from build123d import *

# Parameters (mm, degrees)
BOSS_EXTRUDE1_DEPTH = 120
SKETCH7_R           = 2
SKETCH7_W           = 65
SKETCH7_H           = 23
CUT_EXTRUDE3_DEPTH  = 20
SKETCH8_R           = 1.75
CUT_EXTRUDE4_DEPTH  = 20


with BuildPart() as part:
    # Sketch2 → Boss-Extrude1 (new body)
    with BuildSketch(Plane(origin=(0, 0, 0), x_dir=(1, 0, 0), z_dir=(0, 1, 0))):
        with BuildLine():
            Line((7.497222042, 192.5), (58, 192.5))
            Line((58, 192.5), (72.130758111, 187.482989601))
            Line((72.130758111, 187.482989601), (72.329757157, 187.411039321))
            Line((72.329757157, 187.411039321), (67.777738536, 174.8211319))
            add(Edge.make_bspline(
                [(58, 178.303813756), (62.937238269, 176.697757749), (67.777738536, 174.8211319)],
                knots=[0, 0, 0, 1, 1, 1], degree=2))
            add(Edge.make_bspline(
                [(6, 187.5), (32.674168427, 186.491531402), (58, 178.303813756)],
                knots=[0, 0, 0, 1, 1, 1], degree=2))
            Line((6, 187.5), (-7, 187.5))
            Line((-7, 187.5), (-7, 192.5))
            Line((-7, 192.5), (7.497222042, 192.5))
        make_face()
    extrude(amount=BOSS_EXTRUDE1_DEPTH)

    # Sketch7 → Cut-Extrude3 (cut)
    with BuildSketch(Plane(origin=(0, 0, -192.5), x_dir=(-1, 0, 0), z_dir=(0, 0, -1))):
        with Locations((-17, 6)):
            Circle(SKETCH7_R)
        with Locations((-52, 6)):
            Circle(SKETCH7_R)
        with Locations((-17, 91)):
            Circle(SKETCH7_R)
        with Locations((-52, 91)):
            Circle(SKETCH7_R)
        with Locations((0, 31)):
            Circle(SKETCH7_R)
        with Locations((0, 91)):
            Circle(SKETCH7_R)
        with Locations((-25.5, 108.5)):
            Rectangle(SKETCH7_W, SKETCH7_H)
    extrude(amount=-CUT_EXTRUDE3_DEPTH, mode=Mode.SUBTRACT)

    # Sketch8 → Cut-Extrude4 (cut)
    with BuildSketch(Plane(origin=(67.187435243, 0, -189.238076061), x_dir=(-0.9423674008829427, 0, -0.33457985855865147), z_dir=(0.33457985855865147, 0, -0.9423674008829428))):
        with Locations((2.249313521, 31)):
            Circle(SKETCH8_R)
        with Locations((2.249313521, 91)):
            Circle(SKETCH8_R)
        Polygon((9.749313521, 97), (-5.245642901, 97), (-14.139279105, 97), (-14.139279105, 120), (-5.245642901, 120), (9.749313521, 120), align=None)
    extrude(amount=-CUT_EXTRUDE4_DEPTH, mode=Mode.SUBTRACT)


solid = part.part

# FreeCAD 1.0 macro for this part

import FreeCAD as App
import Part
import Sketcher

doc = App.newDocument("Part")
body = doc.addObject("PartDesign::Body", "Body")

# Sketch on XZ plane
sketch1 = body.newObject("Sketcher::SketchObject", "Sketch")
sketch1.AttachmentSupport = (doc.getObject("XZ_Plane"), [""])
sketch1.MapMode = "FlatFace"
sketch1.addGeometry(Part.LineSegment(App.Vector(72.130758, -187.48299, 0), App.Vector(58, -192.5, 0)), False)
sketch1.addGeometry(Part.LineSegment(App.Vector(58, -192.5, 0), App.Vector(-7, -192.5, 0)), False)
sketch1.addGeometry(Part.LineSegment(App.Vector(-7, -192.5, 0), App.Vector(-7, -187.5, 0)), False)
sketch1.addGeometry(Part.LineSegment(App.Vector(-7, -187.5, 0), App.Vector(6, -187.5, 0)), False)
sketch1.addGeometry(Part.BSplineCurve([App.Vector(6, -187.5, 0), App.Vector(32.674168, -186.491531, 0), App.Vector(58, -178.303814, 0)], [3, 3], [0, 1], False, 2, [1, 1, 1], False), False)
sketch1.addGeometry(Part.BSplineCurve([App.Vector(58, -178.303814, 0), App.Vector(62.937238, -176.697758, 0), App.Vector(67.777739, -174.821132, 0)], [3, 3], [0, 1], False, 2, [1, 1, 1], False), False)
sketch1.addGeometry(Part.LineSegment(App.Vector(67.777739, -174.821132, 0), App.Vector(72.329757, -187.411039, 0)), False)
sketch1.addGeometry(Part.LineSegment(App.Vector(72.329757, -187.411039, 0), App.Vector(72.130758, -187.48299, 0)), False)
sketch1.addConstraint(Sketcher.Constraint("Block", 4))
sketch1.addConstraint(Sketcher.Constraint("Block", 5))
sketch1.addConstraint(Sketcher.Constraint("Coincident", 0, 2, 1, 1))
sketch1.addConstraint(Sketcher.Constraint("Coincident", 1, 2, 2, 1))
sketch1.addConstraint(Sketcher.Constraint("Coincident", 2, 2, 3, 1))
sketch1.addConstraint(Sketcher.Constraint("Coincident", 3, 2, 4, 1))
sketch1.addConstraint(Sketcher.Constraint("Coincident", 5, 2, 6, 1))
sketch1.addConstraint(Sketcher.Constraint("Coincident", 6, 2, 7, 1))
sketch1.addConstraint(Sketcher.Constraint("Coincident", 7, 2, 0, 1))
sketch1.addConstraint(Sketcher.Constraint("Horizontal", 1))
sketch1.addConstraint(Sketcher.Constraint("Vertical", 2))
sketch1.addConstraint(Sketcher.Constraint("Horizontal", 3))
sketch1.addConstraint(Sketcher.Constraint("DistanceX", 1, 2, 1, 1, 65.0))
sketch1.addConstraint(Sketcher.Constraint("DistanceX", 3, 1, 3, 2, 13.0))
sketch1.addConstraint(Sketcher.Constraint("DistanceY", 2, 1, 2, 2, 5.0))
sketch1.addConstraint(Sketcher.Constraint("DistanceX", 7, 2, 6, 2, 0.198999))
sketch1.addConstraint(Sketcher.Constraint("DistanceY", 6, 2, -1, 1, 187.411039))
sketch1.addConstraint(Sketcher.Constraint("DistanceX", -1, 1, 7, 2, 72.130758))
sketch1.addConstraint(Sketcher.Constraint("DistanceY", 7, 2, -1, 1, 187.48299))
pad1 = body.newObject("PartDesign::Pad", "Pad")
pad1.Profile = sketch1
pad1.Length = 120
pad1.Reversed = True

# Sketch on XY plane
sketch2 = body.newObject("Sketcher::SketchObject", "Sketch001")
sketch2.AttachmentSupport = (doc.getObject("XY_Plane"), [""])
sketch2.MapMode = "FlatFace"
sketch2.AttachmentOffset = App.Placement(App.Vector(0, 0, -192.5), App.Rotation())
sketch2.addGeometry(Part.Circle(App.Vector(17, 6, 0), App.Vector(0, 0, 1), 2), False)
sketch2.addGeometry(Part.Circle(App.Vector(52, 6, 0), App.Vector(0, 0, 1), 2), False)
sketch2.addGeometry(Part.Circle(App.Vector(17, 91, 0), App.Vector(0, 0, 1), 2), False)
sketch2.addGeometry(Part.Circle(App.Vector(52, 91, 0), App.Vector(0, 0, 1), 2), False)
sketch2.addGeometry(Part.Circle(App.Vector(0, 31, 0), App.Vector(0, 0, 1), 2), False)
sketch2.addGeometry(Part.Circle(App.Vector(0, 91, 0), App.Vector(0, 0, 1), 2), False)
sketch2.addGeometry(Part.LineSegment(App.Vector(58, 120, 0), App.Vector(58, 97, 0)), False)
sketch2.addGeometry(Part.LineSegment(App.Vector(58, 97, 0), App.Vector(-7, 97, 0)), False)
sketch2.addGeometry(Part.LineSegment(App.Vector(-7, 97, 0), App.Vector(-7, 120, 0)), False)
sketch2.addGeometry(Part.LineSegment(App.Vector(-7, 120, 0), App.Vector(58, 120, 0)), False)
sketch2.addConstraint(Sketcher.Constraint("Coincident", 6, 2, 7, 1))
sketch2.addConstraint(Sketcher.Constraint("Coincident", 7, 2, 8, 1))
sketch2.addConstraint(Sketcher.Constraint("Coincident", 8, 2, 9, 1))
sketch2.addConstraint(Sketcher.Constraint("Coincident", 9, 2, 6, 1))
sketch2.addConstraint(Sketcher.Constraint("Vertical", 6))
sketch2.addConstraint(Sketcher.Constraint("Horizontal", 7))
sketch2.addConstraint(Sketcher.Constraint("Vertical", 8))
sketch2.addConstraint(Sketcher.Constraint("Horizontal", 9))
sketch2.addConstraint(Sketcher.Constraint("Equal", 0, 1))
sketch2.addConstraint(Sketcher.Constraint("Equal", 1, 2))
sketch2.addConstraint(Sketcher.Constraint("Equal", 2, 3))
sketch2.addConstraint(Sketcher.Constraint("Equal", 3, 4))
sketch2.addConstraint(Sketcher.Constraint("Equal", 4, 5))
sketch2.addConstraint(Sketcher.Constraint("PointOnObject", 4, 3, -2))
sketch2.addConstraint(Sketcher.Constraint("PointOnObject", 5, 3, -2))
sketch2.addConstraint(Sketcher.Constraint("Horizontal", 0, 3, 1, 3))
sketch2.addConstraint(Sketcher.Constraint("Horizontal", 2, 3, 3, 3))
sketch2.addConstraint(Sketcher.Constraint("Horizontal", 3, 3, 5, 3))
sketch2.addConstraint(Sketcher.Constraint("Vertical", 0, 3, 2, 3))
sketch2.addConstraint(Sketcher.Constraint("Vertical", 1, 3, 3, 3))
sketch2.addConstraint(Sketcher.Constraint("Diameter", 0, 4.0))
sketch2.addConstraint(Sketcher.Constraint("DistanceX", 7, 2, 7, 1, 65.0))
sketch2.addConstraint(Sketcher.Constraint("DistanceY", 6, 2, 6, 1, 23.0))
sketch2.addConstraint(Sketcher.Constraint("DistanceX", -1, 1, 0, 3, 17.0))
sketch2.addConstraint(Sketcher.Constraint("DistanceY", -1, 1, 0, 3, 6.0))
sketch2.addConstraint(Sketcher.Constraint("DistanceX", -1, 1, 1, 3, 52.0))
sketch2.addConstraint(Sketcher.Constraint("DistanceY", -1, 1, 2, 3, 91.0))
sketch2.addConstraint(Sketcher.Constraint("DistanceY", -1, 1, 4, 3, 31.0))
sketch2.addConstraint(Sketcher.Constraint("DistanceX", -1, 1, 6, 2, 58.0))
sketch2.addConstraint(Sketcher.Constraint("DistanceY", -1, 1, 6, 2, 97.0))
pocket1 = body.newObject("PartDesign::Pocket", "Pocket")
pocket1.Profile = sketch2
pocket1.Length = 20
pocket1.Reversed = True

# Sketch on an angled plane
sketch3 = body.newObject("Sketcher::SketchObject", "Sketch002")
sketch3.Placement = App.Placement(App.Vector(67.187435, 0, -189.238076), App.Rotation(App.Vector(-0.942367401, 0, -0.334579859), App.Vector(0, 1.000000001, 0), App.Vector(0.334579859, 0, -0.942367401), "ZXY"))
sketch3.addGeometry(Part.Circle(App.Vector(2.2, 31, 0), App.Vector(0, 0, 1), 1.8), False)
sketch3.addGeometry(Part.Circle(App.Vector(2.2, 91, 0), App.Vector(0, 0, 1), 1.8), False)
sketch3.addGeometry(Part.LineSegment(App.Vector(-14.1, 97, 0), App.Vector(9.7, 97, 0)), False)
sketch3.addGeometry(Part.LineSegment(App.Vector(9.7, 97, 0), App.Vector(9.7, 120, 0)), False)
sketch3.addGeometry(Part.LineSegment(App.Vector(9.7, 120, 0), App.Vector(-14.1, 120, 0)), False)
sketch3.addGeometry(Part.LineSegment(App.Vector(-14.1, 120, 0), App.Vector(-14.1, 97, 0)), False)
sketch3.addConstraint(Sketcher.Constraint("Coincident", 2, 2, 3, 1))
sketch3.addConstraint(Sketcher.Constraint("Coincident", 3, 2, 4, 1))
sketch3.addConstraint(Sketcher.Constraint("Coincident", 4, 2, 5, 1))
sketch3.addConstraint(Sketcher.Constraint("Coincident", 5, 2, 2, 1))
sketch3.addConstraint(Sketcher.Constraint("Horizontal", 2))
sketch3.addConstraint(Sketcher.Constraint("Vertical", 3))
sketch3.addConstraint(Sketcher.Constraint("Horizontal", 4))
sketch3.addConstraint(Sketcher.Constraint("Vertical", 5))
sketch3.addConstraint(Sketcher.Constraint("Equal", 0, 1))
sketch3.addConstraint(Sketcher.Constraint("Vertical", 0, 3, 1, 3))
sketch3.addConstraint(Sketcher.Constraint("Diameter", 0, 3.5))
sketch3.addConstraint(Sketcher.Constraint("DistanceY", 3, 1, 3, 2, 23.0))
sketch3.addConstraint(Sketcher.Constraint("DistanceY", -1, 1, 0, 3, 31.0))
sketch3.addConstraint(Sketcher.Constraint("DistanceY", -1, 1, 1, 3, 91.0))
sketch3.addConstraint(Sketcher.Constraint("DistanceY", -1, 1, 2, 2, 97.0))
sketch3.addConstraint(Sketcher.Constraint("DistanceX", 1, 3, 2, 2, 7.5))
sketch3.addConstraint(Sketcher.Constraint("DistanceX", 2, 1, 2, 2, 23.888593))
sketch3.addConstraint(Sketcher.Constraint("DistanceX", 4, 2, -1, 1, 14.139279))
pocket2 = body.newObject("PartDesign::Pocket", "Pocket001")
pocket2.Profile = sketch3
pocket2.Length = 20

doc.recompute()
